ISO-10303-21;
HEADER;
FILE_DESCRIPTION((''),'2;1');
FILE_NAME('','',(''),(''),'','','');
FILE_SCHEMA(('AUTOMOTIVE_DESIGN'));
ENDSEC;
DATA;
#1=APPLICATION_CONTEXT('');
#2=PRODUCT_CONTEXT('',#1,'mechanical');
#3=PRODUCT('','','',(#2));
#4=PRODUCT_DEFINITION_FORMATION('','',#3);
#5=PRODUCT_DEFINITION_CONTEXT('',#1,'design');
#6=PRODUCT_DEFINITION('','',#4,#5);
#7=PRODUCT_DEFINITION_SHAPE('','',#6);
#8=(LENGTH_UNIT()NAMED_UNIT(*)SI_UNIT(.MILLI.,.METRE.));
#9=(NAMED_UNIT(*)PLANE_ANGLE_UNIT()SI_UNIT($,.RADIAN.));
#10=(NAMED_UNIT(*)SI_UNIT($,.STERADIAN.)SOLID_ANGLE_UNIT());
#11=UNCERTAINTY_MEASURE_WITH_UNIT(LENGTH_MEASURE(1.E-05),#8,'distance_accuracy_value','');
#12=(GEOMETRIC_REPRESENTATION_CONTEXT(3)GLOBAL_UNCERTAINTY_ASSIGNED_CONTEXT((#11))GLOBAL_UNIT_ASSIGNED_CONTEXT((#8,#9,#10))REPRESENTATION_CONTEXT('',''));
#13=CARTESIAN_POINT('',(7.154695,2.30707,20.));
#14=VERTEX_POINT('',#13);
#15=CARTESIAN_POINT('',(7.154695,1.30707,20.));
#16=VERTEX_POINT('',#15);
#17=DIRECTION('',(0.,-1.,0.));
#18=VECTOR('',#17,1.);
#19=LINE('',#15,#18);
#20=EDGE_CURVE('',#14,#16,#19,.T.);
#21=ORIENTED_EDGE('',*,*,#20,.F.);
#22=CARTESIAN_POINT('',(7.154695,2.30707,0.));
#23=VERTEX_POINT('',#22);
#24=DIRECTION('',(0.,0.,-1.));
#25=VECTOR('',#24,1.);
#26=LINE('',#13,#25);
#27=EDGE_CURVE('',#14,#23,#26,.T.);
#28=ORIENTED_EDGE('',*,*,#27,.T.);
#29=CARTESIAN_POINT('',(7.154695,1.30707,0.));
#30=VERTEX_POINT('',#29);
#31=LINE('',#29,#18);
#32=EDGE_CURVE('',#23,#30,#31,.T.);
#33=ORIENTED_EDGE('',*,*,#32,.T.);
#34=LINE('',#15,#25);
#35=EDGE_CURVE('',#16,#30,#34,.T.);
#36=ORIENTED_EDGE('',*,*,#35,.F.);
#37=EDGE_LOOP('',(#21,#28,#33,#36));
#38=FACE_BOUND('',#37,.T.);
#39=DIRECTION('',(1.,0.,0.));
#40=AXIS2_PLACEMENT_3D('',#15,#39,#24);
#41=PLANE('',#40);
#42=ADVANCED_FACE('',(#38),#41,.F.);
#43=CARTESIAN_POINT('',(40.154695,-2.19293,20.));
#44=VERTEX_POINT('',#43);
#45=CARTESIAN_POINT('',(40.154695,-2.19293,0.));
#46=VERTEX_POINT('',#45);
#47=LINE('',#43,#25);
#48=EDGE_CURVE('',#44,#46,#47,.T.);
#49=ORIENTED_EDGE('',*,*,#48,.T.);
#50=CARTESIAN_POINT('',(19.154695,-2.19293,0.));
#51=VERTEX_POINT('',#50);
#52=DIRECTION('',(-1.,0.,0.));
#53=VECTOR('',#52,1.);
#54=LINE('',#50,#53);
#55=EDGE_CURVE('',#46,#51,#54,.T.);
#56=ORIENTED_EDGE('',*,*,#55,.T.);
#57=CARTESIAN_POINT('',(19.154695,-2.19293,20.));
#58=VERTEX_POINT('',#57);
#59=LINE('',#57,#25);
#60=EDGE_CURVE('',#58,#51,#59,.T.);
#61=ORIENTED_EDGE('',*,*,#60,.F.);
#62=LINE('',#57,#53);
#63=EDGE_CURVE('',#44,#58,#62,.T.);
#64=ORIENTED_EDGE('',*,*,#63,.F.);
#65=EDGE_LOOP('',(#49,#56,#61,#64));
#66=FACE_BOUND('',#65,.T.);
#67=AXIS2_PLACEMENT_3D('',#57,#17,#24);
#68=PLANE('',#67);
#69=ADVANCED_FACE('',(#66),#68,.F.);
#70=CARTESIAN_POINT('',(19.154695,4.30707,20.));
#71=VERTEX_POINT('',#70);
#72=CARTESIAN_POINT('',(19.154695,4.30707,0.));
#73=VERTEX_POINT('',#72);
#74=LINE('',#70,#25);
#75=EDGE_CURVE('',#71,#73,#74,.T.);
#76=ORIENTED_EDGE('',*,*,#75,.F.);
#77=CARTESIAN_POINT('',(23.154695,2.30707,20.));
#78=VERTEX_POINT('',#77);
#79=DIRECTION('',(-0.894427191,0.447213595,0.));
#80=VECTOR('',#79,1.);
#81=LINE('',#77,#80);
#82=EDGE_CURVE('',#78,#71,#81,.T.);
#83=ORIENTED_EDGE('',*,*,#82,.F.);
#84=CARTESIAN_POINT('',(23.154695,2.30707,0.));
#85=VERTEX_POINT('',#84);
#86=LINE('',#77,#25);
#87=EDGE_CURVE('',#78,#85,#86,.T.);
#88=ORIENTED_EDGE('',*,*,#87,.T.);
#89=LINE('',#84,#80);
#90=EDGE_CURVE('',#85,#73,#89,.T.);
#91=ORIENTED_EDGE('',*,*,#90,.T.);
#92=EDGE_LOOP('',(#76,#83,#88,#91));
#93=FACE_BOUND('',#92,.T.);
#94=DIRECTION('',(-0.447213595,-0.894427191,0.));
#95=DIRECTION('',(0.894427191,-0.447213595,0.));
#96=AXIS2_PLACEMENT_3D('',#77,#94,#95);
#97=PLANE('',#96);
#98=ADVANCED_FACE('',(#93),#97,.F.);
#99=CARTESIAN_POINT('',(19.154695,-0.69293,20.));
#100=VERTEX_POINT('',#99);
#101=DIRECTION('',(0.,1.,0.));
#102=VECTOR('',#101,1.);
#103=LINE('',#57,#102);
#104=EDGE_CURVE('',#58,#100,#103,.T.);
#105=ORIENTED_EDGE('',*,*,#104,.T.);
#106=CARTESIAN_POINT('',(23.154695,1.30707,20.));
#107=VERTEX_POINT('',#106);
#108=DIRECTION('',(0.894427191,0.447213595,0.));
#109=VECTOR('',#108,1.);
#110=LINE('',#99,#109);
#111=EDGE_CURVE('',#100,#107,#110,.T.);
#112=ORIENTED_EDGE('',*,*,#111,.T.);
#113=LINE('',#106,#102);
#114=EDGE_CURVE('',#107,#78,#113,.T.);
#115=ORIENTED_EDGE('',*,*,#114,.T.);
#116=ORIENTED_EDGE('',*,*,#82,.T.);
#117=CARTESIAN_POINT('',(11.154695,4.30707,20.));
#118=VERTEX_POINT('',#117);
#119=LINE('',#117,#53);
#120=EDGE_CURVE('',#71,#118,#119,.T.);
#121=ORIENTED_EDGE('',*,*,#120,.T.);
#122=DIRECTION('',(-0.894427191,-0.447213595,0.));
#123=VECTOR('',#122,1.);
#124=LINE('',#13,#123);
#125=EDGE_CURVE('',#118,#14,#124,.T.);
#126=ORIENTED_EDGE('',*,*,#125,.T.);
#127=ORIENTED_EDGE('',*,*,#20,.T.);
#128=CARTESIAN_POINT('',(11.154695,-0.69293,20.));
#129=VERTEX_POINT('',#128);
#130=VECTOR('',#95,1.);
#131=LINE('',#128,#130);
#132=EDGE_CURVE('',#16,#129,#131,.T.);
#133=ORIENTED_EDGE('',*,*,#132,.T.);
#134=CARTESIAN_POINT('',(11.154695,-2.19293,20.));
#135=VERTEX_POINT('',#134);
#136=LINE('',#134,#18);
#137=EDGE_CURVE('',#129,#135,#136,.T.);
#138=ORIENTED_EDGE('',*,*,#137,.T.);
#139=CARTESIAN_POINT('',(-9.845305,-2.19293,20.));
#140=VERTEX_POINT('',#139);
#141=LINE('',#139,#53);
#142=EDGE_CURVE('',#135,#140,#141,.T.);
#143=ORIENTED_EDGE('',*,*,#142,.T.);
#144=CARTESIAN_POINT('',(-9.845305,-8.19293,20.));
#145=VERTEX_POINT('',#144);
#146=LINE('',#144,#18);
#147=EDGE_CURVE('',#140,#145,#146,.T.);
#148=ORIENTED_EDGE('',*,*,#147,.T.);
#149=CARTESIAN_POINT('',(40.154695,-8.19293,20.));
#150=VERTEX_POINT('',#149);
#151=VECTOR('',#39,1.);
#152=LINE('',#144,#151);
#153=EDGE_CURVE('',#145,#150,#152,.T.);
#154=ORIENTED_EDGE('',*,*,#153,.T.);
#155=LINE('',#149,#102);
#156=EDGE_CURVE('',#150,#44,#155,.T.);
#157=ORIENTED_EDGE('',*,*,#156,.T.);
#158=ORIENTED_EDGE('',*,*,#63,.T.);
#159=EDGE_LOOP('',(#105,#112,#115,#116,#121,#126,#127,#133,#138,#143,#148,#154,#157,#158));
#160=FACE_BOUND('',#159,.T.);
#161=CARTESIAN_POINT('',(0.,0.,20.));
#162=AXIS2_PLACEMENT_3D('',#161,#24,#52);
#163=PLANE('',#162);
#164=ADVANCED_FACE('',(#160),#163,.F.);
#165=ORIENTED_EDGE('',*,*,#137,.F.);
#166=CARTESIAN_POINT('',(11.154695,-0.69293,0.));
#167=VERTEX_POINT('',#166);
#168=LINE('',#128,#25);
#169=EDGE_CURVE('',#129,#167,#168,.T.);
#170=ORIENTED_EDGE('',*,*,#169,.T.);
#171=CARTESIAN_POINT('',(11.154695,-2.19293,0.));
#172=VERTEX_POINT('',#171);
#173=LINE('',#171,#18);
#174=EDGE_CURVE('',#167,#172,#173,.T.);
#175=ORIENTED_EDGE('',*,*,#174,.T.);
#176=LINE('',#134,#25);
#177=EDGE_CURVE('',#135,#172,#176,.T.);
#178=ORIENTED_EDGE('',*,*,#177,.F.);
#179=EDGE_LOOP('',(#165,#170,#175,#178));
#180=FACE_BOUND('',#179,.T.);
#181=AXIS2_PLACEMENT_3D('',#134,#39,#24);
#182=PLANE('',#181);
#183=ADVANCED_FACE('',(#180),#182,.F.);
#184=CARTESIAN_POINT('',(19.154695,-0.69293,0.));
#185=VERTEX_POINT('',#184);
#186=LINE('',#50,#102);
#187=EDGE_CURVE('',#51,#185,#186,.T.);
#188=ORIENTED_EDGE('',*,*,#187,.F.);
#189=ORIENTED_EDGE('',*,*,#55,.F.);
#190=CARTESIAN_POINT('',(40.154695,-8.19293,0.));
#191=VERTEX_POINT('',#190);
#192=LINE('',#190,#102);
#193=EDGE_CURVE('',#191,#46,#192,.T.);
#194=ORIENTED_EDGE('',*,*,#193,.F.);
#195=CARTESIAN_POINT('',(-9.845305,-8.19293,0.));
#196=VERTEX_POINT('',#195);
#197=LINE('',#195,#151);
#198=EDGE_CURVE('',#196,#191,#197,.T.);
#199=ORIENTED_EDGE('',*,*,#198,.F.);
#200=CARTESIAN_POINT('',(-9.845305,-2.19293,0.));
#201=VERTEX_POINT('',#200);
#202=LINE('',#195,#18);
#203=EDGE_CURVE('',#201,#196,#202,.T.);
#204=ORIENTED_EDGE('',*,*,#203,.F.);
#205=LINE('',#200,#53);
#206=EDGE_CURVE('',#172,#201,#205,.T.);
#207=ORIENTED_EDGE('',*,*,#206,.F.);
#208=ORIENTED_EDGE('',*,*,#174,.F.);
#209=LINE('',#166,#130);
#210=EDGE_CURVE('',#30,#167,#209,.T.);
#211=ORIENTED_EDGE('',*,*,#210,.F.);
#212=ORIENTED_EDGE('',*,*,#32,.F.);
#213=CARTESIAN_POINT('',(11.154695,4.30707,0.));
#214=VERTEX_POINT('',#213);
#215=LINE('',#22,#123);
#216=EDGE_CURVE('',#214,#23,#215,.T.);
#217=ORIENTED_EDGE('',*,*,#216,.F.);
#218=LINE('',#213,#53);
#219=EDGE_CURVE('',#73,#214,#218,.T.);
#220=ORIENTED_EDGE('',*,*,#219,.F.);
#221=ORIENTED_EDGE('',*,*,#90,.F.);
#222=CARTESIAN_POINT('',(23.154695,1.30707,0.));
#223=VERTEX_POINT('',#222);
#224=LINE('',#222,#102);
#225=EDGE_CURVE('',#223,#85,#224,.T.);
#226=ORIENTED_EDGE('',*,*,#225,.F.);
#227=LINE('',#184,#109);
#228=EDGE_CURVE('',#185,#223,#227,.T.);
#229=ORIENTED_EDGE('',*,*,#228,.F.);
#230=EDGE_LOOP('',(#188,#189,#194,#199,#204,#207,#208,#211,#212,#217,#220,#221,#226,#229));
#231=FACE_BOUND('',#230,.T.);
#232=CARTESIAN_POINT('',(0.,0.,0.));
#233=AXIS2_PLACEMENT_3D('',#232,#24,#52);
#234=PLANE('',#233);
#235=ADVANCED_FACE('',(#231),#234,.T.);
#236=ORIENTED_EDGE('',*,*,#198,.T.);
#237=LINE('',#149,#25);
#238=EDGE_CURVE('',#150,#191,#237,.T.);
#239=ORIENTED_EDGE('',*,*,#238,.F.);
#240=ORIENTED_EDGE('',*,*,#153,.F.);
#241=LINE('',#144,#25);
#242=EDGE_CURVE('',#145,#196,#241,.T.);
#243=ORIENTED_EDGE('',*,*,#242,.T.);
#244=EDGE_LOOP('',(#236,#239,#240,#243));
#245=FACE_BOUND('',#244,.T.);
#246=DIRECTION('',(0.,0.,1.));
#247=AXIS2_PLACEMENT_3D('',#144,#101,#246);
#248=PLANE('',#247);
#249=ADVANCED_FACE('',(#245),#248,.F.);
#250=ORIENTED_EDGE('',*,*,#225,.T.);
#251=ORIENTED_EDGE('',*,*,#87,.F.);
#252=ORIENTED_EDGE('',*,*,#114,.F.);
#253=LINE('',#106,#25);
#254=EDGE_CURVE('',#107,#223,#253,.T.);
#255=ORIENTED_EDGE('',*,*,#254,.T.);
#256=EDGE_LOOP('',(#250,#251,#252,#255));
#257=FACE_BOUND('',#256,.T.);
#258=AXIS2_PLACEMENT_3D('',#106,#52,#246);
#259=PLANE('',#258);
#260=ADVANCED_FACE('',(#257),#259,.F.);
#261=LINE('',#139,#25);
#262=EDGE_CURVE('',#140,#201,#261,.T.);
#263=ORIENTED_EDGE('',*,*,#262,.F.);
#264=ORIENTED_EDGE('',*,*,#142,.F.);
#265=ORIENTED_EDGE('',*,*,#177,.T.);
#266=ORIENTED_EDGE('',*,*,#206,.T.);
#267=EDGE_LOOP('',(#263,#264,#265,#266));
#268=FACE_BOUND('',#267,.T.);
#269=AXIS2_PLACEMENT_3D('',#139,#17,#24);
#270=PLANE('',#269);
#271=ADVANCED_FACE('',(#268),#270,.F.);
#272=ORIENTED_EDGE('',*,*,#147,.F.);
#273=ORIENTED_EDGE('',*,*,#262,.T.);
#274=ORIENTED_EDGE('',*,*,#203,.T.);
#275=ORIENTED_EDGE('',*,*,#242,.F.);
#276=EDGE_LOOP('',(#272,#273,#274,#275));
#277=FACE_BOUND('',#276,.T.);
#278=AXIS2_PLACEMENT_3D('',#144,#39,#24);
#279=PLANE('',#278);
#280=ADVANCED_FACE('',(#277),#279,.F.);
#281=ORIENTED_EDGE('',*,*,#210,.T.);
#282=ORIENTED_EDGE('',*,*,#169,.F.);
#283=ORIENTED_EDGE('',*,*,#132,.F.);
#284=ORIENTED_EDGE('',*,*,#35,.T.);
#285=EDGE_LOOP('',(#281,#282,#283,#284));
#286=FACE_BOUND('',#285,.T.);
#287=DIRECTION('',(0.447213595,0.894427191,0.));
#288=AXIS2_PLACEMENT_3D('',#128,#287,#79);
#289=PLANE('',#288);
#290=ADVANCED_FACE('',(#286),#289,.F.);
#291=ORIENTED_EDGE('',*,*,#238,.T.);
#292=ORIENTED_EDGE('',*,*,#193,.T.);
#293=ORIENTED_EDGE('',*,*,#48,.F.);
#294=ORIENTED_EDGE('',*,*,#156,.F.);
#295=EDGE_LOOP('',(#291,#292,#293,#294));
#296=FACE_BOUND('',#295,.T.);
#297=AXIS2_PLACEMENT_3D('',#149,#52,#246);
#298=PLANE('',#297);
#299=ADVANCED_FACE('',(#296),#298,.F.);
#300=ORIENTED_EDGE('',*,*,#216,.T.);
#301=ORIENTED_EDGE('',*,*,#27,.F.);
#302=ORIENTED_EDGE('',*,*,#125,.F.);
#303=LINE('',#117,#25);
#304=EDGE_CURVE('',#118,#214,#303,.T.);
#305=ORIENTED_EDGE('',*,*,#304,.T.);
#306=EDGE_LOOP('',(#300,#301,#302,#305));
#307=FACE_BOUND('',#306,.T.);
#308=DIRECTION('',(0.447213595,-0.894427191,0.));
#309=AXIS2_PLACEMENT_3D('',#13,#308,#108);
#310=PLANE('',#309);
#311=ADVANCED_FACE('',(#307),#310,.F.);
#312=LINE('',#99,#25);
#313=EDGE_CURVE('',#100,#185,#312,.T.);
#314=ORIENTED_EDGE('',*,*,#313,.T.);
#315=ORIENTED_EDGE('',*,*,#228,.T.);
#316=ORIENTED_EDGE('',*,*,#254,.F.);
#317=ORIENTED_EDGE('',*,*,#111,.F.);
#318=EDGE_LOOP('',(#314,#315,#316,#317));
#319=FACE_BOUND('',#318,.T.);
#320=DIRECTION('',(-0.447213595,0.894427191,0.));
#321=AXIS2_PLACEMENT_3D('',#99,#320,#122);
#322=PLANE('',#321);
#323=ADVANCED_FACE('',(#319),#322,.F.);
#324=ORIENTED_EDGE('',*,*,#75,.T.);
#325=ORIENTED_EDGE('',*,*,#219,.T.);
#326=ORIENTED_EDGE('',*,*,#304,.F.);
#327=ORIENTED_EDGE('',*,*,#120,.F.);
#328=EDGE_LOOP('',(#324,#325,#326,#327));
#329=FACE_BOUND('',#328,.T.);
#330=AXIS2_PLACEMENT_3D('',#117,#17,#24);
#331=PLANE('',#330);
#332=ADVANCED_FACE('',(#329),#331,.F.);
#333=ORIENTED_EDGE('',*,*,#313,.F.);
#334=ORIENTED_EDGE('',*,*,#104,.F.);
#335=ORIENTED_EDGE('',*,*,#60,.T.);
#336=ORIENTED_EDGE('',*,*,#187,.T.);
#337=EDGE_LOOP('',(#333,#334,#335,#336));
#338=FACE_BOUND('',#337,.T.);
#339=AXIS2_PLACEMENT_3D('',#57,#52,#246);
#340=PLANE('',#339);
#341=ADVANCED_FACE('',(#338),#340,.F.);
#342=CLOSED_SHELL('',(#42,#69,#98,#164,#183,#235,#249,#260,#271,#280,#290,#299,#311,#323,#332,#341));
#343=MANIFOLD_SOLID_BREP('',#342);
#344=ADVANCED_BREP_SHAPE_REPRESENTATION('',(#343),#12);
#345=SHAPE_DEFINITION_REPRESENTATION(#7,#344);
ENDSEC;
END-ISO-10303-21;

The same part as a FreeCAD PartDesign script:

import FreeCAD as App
import Part
import Sketcher
from FreeCAD import Vector


def add_polygon(sketch, points):
    """Adds a closed chain of lines whose ends are joined by coincident constraints."""
    first, n = sketch.GeometryCount, len(points)
    for a, b in zip(points, points[1:] + points[:1]):
        sketch.addGeometry(Part.LineSegment(App.Vector(*a, 0), App.Vector(*b, 0)), False)
    for i in range(n):
        sketch.addConstraint(Sketcher.Constraint("Coincident", first + i, 2, first + (i + 1) % n, 1))

doc = App.newDocument("Part")
body = doc.addObject("PartDesign::Body", "Body")

sketch1 = body.newObject("Sketcher::SketchObject", "Sketch")
sketch1.AttachmentSupport = (doc.getObject("XY_Plane"), [""])
sketch1.MapMode = "FlatFace"
add_polygon(sketch1, [(-9.845305, -8.19293), (40.154695, -8.19293), (40.154695, -2.19293), (19.154695, -2.19293), (19.154695, -0.69293), (23.154695, 1.30707), (23.154695, 2.30707), (19.154695, 4.30707), (11.154695, 4.30707), (7.154695, 2.30707), (7.154695, 1.30707), (11.154695, -0.69293), (11.154695, -2.19293), (-9.845305, -2.19293)])
sketch1.addConstraint([
    Sketcher.Constraint("Horizontal", 0),
    Sketcher.Constraint("Vertical", 1),
    Sketcher.Constraint("Horizontal", 2),
    Sketcher.Constraint("Vertical", 3),
    Sketcher.Constraint("Vertical", 5),
    Sketcher.Constraint("Horizontal", 7),
    Sketcher.Constraint("Vertical", 9),
    Sketcher.Constraint("Vertical", 11),
    Sketcher.Constraint("Horizontal", 12),
    Sketcher.Constraint("Vertical", 13),
    Sketcher.Constraint("Parallel", 4, 8),
    Sketcher.Constraint("Parallel", 6, 10),
    Sketcher.Constraint("Horizontal", 5, 2, 8, 2),
    Sketcher.Constraint("Horizontal", 4, 2, 9, 2),
    Sketcher.Constraint("Horizontal", 3, 2, 10, 2),
    Sketcher.Constraint("Horizontal", 2, 2, 11, 2),
    Sketcher.Constraint("Vertical", 3, 2, 6, 2),
    Sketcher.Constraint("Vertical", 7, 2, 10, 2),
    Sketcher.Constraint("Equal", 2, 12),
    Sketcher.Constraint("DistanceX", 0, 1, 0, 2, 50.0),
    Sketcher.Constraint("DistanceX", 2, 2, 2, 1, 21.0),
    Sketcher.Constraint("DistanceY", 1, 1, 1, 2, 6.0),
    Sketcher.Constraint("DistanceY", 5, 1, 5, 2, 1.0),
    Sketcher.Constraint("DistanceY", 3, 1, 3, 2, 1.5),
    Sketcher.Constraint("DistanceX", 3, 2, 4, 2, 4.0),
    Sketcher.Constraint("DistanceY", 3, 2, 4, 2, 2.0),
    Sketcher.Constraint("DistanceY", 0, 2, -1, 1, 8.19293),
    Sketcher.Constraint("DistanceX", -1, 1, 0, 2, 40.154695),
])
pad1 = body.newObject("PartDesign::Pad", "Pad")
pad1.Profile = sketch1
pad1.Length = 20

doc.recompute()
